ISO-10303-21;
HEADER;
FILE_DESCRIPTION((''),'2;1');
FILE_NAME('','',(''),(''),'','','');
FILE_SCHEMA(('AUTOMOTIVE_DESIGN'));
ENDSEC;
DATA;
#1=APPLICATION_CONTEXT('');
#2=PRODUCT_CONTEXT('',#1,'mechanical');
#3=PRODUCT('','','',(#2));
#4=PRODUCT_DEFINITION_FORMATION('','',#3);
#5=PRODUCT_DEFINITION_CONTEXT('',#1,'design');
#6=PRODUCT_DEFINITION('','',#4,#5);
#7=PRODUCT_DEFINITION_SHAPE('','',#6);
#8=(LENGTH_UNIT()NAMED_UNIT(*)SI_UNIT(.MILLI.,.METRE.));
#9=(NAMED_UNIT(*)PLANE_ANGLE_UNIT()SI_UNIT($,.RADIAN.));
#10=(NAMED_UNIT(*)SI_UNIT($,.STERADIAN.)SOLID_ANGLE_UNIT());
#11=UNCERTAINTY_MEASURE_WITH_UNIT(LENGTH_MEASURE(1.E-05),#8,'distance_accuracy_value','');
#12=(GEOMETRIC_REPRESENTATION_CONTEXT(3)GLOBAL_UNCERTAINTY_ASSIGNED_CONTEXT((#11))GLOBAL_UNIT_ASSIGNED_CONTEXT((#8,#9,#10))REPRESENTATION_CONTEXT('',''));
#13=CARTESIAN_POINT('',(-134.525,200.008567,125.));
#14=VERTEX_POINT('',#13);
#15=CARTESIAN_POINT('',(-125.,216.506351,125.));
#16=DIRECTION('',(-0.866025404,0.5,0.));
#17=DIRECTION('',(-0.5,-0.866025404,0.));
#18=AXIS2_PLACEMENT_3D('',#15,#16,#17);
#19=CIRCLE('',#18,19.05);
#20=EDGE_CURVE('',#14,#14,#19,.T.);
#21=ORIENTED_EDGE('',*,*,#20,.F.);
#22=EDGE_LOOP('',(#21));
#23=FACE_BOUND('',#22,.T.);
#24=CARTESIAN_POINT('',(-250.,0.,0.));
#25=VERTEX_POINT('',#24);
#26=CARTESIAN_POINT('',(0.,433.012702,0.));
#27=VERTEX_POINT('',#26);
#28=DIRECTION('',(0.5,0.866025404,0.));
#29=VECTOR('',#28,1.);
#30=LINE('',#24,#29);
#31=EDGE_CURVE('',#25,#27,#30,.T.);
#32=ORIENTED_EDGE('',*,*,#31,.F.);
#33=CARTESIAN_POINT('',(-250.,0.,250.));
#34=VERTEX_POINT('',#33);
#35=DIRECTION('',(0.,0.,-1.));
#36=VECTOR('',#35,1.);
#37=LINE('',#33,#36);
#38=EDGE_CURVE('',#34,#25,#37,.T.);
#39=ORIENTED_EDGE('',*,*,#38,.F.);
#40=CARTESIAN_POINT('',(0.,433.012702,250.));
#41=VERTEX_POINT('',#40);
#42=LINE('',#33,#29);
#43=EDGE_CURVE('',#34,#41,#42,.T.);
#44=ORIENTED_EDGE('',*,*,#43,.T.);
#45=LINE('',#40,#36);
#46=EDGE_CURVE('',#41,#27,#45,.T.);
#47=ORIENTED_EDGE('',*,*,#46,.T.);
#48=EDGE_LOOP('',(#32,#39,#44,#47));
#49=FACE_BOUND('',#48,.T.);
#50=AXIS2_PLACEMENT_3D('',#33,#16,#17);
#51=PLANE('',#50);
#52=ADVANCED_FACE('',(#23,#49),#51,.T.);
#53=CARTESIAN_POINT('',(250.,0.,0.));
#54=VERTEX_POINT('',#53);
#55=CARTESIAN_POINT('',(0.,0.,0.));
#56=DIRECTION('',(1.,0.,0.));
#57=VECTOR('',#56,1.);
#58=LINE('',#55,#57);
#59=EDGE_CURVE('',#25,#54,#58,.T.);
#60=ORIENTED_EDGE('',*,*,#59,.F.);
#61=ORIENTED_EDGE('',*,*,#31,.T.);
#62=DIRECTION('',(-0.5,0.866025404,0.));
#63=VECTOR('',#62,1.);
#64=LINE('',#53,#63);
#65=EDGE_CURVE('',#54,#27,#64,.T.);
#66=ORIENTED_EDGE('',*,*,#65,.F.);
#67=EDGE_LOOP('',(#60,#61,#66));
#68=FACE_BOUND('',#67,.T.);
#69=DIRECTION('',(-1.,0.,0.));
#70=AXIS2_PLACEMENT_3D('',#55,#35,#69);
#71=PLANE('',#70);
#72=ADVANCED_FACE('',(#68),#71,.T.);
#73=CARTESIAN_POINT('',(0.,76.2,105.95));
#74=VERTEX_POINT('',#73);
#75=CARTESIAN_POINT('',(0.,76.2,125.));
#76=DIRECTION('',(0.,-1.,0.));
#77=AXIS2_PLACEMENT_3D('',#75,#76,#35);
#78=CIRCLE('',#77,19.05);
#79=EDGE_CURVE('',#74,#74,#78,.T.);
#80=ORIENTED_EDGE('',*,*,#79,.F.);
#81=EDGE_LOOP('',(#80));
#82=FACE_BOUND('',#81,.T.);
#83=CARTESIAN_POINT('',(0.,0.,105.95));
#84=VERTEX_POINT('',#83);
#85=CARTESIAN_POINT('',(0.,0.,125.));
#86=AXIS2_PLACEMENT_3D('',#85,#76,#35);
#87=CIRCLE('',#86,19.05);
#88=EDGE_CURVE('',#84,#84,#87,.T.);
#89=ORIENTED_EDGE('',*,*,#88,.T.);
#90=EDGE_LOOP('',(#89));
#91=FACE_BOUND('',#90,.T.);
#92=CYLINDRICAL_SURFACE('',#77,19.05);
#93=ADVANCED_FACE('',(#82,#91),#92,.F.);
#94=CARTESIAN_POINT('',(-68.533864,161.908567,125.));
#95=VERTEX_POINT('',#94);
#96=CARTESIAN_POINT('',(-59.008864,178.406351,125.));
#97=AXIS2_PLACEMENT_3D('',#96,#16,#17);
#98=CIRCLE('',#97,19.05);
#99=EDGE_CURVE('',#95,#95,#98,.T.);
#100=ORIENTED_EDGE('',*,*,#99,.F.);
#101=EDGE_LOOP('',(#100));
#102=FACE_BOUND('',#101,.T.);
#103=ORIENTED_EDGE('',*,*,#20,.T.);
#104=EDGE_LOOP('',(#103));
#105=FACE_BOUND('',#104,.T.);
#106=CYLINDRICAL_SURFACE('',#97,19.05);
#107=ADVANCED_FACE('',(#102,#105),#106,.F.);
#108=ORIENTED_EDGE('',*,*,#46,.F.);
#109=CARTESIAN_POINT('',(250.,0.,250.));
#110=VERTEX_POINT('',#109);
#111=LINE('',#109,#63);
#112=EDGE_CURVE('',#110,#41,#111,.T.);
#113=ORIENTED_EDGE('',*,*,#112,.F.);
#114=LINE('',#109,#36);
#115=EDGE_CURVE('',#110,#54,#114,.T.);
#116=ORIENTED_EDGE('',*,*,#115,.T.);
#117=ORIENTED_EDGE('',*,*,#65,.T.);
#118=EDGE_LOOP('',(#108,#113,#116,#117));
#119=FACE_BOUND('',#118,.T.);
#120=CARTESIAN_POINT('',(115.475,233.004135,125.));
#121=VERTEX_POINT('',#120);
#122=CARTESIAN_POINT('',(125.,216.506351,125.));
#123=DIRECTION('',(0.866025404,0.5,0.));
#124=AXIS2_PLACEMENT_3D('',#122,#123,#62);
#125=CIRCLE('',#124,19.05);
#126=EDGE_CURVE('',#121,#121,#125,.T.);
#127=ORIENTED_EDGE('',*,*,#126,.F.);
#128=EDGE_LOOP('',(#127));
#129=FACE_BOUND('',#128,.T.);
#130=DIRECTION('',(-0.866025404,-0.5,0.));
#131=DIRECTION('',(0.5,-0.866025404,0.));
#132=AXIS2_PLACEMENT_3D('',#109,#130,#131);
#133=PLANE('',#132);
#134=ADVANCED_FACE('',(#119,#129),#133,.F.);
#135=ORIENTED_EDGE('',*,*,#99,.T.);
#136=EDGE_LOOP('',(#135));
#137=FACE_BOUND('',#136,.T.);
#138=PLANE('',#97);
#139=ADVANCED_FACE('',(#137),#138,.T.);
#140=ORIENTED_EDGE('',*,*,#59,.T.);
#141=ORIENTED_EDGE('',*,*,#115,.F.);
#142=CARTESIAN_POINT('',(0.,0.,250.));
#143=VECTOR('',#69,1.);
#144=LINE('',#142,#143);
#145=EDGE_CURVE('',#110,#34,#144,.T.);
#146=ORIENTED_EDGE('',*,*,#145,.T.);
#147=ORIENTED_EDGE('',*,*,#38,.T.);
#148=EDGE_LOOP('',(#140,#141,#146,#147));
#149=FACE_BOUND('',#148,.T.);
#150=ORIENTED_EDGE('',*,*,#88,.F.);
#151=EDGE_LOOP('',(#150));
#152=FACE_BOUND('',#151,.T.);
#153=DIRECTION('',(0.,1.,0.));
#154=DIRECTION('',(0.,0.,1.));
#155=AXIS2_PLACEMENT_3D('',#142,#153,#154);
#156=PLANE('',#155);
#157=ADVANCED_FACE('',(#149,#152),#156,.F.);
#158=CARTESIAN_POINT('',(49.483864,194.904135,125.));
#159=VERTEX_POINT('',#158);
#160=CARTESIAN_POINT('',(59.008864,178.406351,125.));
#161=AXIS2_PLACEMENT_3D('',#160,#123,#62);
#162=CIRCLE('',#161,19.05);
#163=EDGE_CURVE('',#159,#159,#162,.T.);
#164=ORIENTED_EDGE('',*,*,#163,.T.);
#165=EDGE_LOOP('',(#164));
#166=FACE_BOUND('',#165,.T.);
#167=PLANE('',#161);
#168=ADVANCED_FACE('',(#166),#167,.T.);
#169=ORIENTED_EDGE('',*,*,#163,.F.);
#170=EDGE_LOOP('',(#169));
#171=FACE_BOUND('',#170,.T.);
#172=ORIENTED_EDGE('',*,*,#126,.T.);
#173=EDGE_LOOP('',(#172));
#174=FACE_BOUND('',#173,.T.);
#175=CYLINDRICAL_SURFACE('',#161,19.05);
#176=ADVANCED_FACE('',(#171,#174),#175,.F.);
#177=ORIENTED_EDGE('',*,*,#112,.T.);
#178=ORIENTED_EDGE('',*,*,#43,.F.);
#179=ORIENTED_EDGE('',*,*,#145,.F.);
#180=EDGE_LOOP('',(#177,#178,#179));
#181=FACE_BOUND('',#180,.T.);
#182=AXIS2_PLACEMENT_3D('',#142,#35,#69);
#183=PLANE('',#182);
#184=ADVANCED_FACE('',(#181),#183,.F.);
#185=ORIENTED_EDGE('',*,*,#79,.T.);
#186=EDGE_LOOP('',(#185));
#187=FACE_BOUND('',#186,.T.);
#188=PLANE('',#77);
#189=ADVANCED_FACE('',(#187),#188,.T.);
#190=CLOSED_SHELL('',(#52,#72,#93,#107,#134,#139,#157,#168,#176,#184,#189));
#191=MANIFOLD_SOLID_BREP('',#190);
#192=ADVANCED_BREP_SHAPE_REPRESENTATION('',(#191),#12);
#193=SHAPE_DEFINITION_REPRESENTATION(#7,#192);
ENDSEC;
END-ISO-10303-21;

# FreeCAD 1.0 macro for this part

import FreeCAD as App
import Part
import Sketcher

V = App.Vector
Q = App.Units.Quantity

doc = App.newDocument("Part")
params = doc.addObject("Spreadsheet::Sheet", "Params")
for row, (alias, value) in enumerate([
    ("sketch1_width", "500 mm"),
    ("pad1_length", "250 mm"),
    ("sketch2_diameter", "38.1 mm"),
    ("pocket1_length", "76.2 mm"),
    ("sketch3_diameter", "38.1 mm"),
    ("pocket2_length", "76.2 mm"),
    ("sketch4_diameter", "38.1 mm"),
    ("pocket3_length", "76.2 mm"),
], start=1):
    params.set(f"A{row}", alias)
    params.set(f"B{row}", "=" + value)
    params.setAlias(f"B{row}", alias)

body = doc.addObject("PartDesign::Body", "Body")

sketch1 = body.newObject("Sketcher::SketchObject", "Sketch")
sketch1.AttachmentSupport = (doc.getObject("XY_Plane"), [""])
sketch1.MapMode = "FlatFace"
sketch1.addGeometry(Part.LineSegment(V(250, 0, 0), V(0, 433, 0)), False)
sketch1.addGeometry(Part.LineSegment(V(0, 433, 0), V(-250, 0, 0)), False)
sketch1.addGeometry(Part.LineSegment(V(-250, 0, 0), V(250, 0, 0)), False)
sketch1.addConstraint(Sketcher.Constraint("Coincident", 0, 2, 1, 1))
sketch1.addConstraint(Sketcher.Constraint("Coincident", 1, 2, 2, 1))
sketch1.addConstraint(Sketcher.Constraint("Coincident", 2, 2, 0, 1))
sketch1.addConstraint(Sketcher.Constraint("Horizontal", 2))
sketch1.addConstraint(Sketcher.Constraint("Symmetric", 1, 2, 2, 2, -1, 1))
sketch1.addConstraint(Sketcher.Constraint("PointOnObject", 0, 2, -2))
sketch1.addConstraint(Sketcher.Constraint("DistanceX", 2, 1, 2, 2, Q("500 mm")))
sketch1.addConstraint(Sketcher.Constraint("Angle", 0, Q("120 deg")))
sketch1.setExpression("Constraints[6]", "Params.sketch1_width")
pad1 = body.newObject("PartDesign::Pad", "Pad")
pad1.Profile = sketch1
pad1.setExpression("Length", "Params.pad1_length")

sketch2 = body.newObject("Sketcher::SketchObject", "Sketch001")
sketch2.Placement = App.Placement(V(187.5, 108.253175, 0), App.Rotation(V(0, 0, -1), V(-0.5, 0.866025404, 0), V(0.866025404, 0.5, 0), "ZXY"))
sketch2.addGeometry(Part.Circle(V(-125, 125, 0), V(0, 0, 1), 19), False)
sketch2.addConstraint(Sketcher.Constraint("Diameter", 0, Q("38.1 mm")))
sketch2.addConstraint(Sketcher.Constraint("DistanceX", 0, 3, -1, 1, Q("125 mm")))
sketch2.addConstraint(Sketcher.Constraint("DistanceY", -1, 1, 0, 3, Q("125 mm")))
sketch2.setExpression("Constraints[0]", "Params.sketch2_diameter")
pocket1 = body.newObject("PartDesign::Pocket", "Pocket")
pocket1.Profile = sketch2
pocket1.setExpression("Length", "Params.pocket1_length")

sketch3 = body.newObject("Sketcher::SketchObject", "Sketch002")
sketch3.AttachmentSupport = (doc.getObject("XZ_Plane"), [""])
sketch3.MapMode = "FlatFace"
sketch3.addGeometry(Part.Circle(V(0, 125, 0), V(0, 0, 1), 19), False)
sketch3.addConstraint(Sketcher.Constraint("PointOnObject", 0, 3, -2))
sketch3.addConstraint(Sketcher.Constraint("Diameter", 0, Q("38.1 mm")))
sketch3.addConstraint(Sketcher.Constraint("DistanceY", -1, 1, 0, 3, Q("125 mm")))
sketch3.setExpression("Constraints[1]", "Params.sketch3_diameter")
pocket2 = body.newObject("PartDesign::Pocket", "Pocket001")
pocket2.Profile = sketch3
pocket2.setExpression("Length", "Params.pocket2_length")

sketch4 = body.newObject("Sketcher::SketchObject", "Sketch003")
sketch4.Placement = App.Placement(V(-187.5, 108.253175, 0), App.Rotation(V(0, 0, 1), V(0.5, 0.866025404, 0), V(-0.866025404, 0.5, 0), "ZXY"))
sketch4.addGeometry(Part.Circle(V(125, 125, 0), V(0, 0, 1), 19), False)
sketch4.addConstraint(Sketcher.Constraint("Diameter", 0, Q("38.1 mm")))
sketch4.addConstraint(Sketcher.Constraint("DistanceX", -1, 1, 0, 3, Q("125 mm")))
sketch4.addConstraint(Sketcher.Constraint("DistanceY", -1, 1, 0, 3, Q("125 mm")))
sketch4.setExpression("Constraints[0]", "Params.sketch4_diameter")
pocket3 = body.newObject("PartDesign::Pocket", "Pocket002")
pocket3.Profile = sketch4
pocket3.setExpression("Length", "Params.pocket3_length")

doc.recompute()
